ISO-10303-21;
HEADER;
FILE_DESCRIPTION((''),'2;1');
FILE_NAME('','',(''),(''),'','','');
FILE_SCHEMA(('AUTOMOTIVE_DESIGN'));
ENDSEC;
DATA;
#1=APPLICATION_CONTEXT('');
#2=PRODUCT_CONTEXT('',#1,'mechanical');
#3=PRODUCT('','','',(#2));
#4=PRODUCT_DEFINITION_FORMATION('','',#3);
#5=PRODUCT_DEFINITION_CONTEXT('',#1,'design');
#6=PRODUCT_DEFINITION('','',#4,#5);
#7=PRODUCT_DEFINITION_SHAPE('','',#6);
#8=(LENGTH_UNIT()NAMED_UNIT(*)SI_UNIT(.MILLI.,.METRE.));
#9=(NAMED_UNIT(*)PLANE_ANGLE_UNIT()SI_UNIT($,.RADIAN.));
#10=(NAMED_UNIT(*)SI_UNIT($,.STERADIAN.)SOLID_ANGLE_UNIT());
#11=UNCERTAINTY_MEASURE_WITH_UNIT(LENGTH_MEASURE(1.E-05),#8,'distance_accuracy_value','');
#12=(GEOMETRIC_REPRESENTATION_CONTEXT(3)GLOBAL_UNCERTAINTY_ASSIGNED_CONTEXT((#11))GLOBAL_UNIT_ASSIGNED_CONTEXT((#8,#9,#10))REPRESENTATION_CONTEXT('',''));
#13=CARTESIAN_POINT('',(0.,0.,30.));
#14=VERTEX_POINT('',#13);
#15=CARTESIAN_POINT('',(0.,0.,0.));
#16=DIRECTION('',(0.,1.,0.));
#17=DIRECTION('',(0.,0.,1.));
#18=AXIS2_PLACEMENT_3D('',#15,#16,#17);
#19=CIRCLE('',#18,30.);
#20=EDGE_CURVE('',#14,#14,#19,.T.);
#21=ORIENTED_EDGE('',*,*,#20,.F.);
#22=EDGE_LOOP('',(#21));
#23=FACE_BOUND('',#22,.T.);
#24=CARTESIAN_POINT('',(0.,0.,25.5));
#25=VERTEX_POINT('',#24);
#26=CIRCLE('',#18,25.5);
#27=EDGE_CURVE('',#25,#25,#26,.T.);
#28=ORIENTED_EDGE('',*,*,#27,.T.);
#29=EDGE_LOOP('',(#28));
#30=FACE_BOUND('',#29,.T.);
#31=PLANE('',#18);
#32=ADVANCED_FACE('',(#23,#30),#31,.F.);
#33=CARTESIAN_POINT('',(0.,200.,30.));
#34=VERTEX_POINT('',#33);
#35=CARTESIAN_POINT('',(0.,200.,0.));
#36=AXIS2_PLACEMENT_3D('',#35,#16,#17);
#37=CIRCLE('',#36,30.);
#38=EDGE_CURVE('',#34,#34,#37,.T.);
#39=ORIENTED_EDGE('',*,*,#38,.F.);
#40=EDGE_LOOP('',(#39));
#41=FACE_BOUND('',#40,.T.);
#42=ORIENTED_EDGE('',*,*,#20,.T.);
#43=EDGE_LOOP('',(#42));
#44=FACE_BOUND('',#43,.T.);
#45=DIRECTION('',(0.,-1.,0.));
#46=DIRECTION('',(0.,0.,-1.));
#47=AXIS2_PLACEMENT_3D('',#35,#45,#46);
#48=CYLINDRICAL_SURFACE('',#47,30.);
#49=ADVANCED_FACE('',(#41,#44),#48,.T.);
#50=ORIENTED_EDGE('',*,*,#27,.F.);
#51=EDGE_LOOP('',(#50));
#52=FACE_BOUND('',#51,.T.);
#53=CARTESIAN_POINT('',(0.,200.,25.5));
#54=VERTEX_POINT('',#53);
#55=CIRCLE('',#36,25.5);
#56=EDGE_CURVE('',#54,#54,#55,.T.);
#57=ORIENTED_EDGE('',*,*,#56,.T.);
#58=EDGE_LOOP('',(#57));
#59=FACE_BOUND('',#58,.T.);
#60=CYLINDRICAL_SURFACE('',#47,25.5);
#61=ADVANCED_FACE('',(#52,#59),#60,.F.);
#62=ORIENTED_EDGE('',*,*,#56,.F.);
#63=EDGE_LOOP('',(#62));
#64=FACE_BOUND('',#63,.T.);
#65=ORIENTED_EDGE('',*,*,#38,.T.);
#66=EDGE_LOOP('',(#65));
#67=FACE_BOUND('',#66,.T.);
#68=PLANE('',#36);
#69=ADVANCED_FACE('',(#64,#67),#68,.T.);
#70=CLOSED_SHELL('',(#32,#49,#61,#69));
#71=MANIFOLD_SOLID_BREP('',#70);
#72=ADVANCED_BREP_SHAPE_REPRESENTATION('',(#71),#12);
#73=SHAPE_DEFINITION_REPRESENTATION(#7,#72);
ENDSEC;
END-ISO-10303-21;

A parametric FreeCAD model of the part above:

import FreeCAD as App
import Part
import Sketcher

V = App.Vector

doc = App.newDocument("Part")
body = doc.addObject("PartDesign::Body", "Body")

sketch1 = doc.addObject("Sketcher::SketchObject", "Sketch")
body.addObject(sketch1)
sketch1.AttachmentSupport = (doc.XZ_Plane, [""])
sketch1.MapMode = "FlatFace"
sketch1.addGeometry(Part.Circle(V(0, 0, 0), V(0, 0, 1), 30), False)
sketch1.addGeometry(Part.Circle(V(0, 0, 0), V(0, 0, 1), 26), False)
sketch1.addConstraint(Sketcher.Constraint("Coincident", 0, 3, -1, 1))
sketch1.addConstraint(Sketcher.Constraint("Coincident", 1, 3, -1, 1))
sketch1.addConstraint(Sketcher.Constraint("Diameter", 0, 60.0))
sketch1.addConstraint(Sketcher.Constraint("Diameter", 1, 51.0))
pad1 = doc.addObject("PartDesign::Pad", "Pad")
body.addObject(pad1)
pad1.Profile = sketch1
pad1.Length = 200
pad1.Reversed = True

doc.recompute()
